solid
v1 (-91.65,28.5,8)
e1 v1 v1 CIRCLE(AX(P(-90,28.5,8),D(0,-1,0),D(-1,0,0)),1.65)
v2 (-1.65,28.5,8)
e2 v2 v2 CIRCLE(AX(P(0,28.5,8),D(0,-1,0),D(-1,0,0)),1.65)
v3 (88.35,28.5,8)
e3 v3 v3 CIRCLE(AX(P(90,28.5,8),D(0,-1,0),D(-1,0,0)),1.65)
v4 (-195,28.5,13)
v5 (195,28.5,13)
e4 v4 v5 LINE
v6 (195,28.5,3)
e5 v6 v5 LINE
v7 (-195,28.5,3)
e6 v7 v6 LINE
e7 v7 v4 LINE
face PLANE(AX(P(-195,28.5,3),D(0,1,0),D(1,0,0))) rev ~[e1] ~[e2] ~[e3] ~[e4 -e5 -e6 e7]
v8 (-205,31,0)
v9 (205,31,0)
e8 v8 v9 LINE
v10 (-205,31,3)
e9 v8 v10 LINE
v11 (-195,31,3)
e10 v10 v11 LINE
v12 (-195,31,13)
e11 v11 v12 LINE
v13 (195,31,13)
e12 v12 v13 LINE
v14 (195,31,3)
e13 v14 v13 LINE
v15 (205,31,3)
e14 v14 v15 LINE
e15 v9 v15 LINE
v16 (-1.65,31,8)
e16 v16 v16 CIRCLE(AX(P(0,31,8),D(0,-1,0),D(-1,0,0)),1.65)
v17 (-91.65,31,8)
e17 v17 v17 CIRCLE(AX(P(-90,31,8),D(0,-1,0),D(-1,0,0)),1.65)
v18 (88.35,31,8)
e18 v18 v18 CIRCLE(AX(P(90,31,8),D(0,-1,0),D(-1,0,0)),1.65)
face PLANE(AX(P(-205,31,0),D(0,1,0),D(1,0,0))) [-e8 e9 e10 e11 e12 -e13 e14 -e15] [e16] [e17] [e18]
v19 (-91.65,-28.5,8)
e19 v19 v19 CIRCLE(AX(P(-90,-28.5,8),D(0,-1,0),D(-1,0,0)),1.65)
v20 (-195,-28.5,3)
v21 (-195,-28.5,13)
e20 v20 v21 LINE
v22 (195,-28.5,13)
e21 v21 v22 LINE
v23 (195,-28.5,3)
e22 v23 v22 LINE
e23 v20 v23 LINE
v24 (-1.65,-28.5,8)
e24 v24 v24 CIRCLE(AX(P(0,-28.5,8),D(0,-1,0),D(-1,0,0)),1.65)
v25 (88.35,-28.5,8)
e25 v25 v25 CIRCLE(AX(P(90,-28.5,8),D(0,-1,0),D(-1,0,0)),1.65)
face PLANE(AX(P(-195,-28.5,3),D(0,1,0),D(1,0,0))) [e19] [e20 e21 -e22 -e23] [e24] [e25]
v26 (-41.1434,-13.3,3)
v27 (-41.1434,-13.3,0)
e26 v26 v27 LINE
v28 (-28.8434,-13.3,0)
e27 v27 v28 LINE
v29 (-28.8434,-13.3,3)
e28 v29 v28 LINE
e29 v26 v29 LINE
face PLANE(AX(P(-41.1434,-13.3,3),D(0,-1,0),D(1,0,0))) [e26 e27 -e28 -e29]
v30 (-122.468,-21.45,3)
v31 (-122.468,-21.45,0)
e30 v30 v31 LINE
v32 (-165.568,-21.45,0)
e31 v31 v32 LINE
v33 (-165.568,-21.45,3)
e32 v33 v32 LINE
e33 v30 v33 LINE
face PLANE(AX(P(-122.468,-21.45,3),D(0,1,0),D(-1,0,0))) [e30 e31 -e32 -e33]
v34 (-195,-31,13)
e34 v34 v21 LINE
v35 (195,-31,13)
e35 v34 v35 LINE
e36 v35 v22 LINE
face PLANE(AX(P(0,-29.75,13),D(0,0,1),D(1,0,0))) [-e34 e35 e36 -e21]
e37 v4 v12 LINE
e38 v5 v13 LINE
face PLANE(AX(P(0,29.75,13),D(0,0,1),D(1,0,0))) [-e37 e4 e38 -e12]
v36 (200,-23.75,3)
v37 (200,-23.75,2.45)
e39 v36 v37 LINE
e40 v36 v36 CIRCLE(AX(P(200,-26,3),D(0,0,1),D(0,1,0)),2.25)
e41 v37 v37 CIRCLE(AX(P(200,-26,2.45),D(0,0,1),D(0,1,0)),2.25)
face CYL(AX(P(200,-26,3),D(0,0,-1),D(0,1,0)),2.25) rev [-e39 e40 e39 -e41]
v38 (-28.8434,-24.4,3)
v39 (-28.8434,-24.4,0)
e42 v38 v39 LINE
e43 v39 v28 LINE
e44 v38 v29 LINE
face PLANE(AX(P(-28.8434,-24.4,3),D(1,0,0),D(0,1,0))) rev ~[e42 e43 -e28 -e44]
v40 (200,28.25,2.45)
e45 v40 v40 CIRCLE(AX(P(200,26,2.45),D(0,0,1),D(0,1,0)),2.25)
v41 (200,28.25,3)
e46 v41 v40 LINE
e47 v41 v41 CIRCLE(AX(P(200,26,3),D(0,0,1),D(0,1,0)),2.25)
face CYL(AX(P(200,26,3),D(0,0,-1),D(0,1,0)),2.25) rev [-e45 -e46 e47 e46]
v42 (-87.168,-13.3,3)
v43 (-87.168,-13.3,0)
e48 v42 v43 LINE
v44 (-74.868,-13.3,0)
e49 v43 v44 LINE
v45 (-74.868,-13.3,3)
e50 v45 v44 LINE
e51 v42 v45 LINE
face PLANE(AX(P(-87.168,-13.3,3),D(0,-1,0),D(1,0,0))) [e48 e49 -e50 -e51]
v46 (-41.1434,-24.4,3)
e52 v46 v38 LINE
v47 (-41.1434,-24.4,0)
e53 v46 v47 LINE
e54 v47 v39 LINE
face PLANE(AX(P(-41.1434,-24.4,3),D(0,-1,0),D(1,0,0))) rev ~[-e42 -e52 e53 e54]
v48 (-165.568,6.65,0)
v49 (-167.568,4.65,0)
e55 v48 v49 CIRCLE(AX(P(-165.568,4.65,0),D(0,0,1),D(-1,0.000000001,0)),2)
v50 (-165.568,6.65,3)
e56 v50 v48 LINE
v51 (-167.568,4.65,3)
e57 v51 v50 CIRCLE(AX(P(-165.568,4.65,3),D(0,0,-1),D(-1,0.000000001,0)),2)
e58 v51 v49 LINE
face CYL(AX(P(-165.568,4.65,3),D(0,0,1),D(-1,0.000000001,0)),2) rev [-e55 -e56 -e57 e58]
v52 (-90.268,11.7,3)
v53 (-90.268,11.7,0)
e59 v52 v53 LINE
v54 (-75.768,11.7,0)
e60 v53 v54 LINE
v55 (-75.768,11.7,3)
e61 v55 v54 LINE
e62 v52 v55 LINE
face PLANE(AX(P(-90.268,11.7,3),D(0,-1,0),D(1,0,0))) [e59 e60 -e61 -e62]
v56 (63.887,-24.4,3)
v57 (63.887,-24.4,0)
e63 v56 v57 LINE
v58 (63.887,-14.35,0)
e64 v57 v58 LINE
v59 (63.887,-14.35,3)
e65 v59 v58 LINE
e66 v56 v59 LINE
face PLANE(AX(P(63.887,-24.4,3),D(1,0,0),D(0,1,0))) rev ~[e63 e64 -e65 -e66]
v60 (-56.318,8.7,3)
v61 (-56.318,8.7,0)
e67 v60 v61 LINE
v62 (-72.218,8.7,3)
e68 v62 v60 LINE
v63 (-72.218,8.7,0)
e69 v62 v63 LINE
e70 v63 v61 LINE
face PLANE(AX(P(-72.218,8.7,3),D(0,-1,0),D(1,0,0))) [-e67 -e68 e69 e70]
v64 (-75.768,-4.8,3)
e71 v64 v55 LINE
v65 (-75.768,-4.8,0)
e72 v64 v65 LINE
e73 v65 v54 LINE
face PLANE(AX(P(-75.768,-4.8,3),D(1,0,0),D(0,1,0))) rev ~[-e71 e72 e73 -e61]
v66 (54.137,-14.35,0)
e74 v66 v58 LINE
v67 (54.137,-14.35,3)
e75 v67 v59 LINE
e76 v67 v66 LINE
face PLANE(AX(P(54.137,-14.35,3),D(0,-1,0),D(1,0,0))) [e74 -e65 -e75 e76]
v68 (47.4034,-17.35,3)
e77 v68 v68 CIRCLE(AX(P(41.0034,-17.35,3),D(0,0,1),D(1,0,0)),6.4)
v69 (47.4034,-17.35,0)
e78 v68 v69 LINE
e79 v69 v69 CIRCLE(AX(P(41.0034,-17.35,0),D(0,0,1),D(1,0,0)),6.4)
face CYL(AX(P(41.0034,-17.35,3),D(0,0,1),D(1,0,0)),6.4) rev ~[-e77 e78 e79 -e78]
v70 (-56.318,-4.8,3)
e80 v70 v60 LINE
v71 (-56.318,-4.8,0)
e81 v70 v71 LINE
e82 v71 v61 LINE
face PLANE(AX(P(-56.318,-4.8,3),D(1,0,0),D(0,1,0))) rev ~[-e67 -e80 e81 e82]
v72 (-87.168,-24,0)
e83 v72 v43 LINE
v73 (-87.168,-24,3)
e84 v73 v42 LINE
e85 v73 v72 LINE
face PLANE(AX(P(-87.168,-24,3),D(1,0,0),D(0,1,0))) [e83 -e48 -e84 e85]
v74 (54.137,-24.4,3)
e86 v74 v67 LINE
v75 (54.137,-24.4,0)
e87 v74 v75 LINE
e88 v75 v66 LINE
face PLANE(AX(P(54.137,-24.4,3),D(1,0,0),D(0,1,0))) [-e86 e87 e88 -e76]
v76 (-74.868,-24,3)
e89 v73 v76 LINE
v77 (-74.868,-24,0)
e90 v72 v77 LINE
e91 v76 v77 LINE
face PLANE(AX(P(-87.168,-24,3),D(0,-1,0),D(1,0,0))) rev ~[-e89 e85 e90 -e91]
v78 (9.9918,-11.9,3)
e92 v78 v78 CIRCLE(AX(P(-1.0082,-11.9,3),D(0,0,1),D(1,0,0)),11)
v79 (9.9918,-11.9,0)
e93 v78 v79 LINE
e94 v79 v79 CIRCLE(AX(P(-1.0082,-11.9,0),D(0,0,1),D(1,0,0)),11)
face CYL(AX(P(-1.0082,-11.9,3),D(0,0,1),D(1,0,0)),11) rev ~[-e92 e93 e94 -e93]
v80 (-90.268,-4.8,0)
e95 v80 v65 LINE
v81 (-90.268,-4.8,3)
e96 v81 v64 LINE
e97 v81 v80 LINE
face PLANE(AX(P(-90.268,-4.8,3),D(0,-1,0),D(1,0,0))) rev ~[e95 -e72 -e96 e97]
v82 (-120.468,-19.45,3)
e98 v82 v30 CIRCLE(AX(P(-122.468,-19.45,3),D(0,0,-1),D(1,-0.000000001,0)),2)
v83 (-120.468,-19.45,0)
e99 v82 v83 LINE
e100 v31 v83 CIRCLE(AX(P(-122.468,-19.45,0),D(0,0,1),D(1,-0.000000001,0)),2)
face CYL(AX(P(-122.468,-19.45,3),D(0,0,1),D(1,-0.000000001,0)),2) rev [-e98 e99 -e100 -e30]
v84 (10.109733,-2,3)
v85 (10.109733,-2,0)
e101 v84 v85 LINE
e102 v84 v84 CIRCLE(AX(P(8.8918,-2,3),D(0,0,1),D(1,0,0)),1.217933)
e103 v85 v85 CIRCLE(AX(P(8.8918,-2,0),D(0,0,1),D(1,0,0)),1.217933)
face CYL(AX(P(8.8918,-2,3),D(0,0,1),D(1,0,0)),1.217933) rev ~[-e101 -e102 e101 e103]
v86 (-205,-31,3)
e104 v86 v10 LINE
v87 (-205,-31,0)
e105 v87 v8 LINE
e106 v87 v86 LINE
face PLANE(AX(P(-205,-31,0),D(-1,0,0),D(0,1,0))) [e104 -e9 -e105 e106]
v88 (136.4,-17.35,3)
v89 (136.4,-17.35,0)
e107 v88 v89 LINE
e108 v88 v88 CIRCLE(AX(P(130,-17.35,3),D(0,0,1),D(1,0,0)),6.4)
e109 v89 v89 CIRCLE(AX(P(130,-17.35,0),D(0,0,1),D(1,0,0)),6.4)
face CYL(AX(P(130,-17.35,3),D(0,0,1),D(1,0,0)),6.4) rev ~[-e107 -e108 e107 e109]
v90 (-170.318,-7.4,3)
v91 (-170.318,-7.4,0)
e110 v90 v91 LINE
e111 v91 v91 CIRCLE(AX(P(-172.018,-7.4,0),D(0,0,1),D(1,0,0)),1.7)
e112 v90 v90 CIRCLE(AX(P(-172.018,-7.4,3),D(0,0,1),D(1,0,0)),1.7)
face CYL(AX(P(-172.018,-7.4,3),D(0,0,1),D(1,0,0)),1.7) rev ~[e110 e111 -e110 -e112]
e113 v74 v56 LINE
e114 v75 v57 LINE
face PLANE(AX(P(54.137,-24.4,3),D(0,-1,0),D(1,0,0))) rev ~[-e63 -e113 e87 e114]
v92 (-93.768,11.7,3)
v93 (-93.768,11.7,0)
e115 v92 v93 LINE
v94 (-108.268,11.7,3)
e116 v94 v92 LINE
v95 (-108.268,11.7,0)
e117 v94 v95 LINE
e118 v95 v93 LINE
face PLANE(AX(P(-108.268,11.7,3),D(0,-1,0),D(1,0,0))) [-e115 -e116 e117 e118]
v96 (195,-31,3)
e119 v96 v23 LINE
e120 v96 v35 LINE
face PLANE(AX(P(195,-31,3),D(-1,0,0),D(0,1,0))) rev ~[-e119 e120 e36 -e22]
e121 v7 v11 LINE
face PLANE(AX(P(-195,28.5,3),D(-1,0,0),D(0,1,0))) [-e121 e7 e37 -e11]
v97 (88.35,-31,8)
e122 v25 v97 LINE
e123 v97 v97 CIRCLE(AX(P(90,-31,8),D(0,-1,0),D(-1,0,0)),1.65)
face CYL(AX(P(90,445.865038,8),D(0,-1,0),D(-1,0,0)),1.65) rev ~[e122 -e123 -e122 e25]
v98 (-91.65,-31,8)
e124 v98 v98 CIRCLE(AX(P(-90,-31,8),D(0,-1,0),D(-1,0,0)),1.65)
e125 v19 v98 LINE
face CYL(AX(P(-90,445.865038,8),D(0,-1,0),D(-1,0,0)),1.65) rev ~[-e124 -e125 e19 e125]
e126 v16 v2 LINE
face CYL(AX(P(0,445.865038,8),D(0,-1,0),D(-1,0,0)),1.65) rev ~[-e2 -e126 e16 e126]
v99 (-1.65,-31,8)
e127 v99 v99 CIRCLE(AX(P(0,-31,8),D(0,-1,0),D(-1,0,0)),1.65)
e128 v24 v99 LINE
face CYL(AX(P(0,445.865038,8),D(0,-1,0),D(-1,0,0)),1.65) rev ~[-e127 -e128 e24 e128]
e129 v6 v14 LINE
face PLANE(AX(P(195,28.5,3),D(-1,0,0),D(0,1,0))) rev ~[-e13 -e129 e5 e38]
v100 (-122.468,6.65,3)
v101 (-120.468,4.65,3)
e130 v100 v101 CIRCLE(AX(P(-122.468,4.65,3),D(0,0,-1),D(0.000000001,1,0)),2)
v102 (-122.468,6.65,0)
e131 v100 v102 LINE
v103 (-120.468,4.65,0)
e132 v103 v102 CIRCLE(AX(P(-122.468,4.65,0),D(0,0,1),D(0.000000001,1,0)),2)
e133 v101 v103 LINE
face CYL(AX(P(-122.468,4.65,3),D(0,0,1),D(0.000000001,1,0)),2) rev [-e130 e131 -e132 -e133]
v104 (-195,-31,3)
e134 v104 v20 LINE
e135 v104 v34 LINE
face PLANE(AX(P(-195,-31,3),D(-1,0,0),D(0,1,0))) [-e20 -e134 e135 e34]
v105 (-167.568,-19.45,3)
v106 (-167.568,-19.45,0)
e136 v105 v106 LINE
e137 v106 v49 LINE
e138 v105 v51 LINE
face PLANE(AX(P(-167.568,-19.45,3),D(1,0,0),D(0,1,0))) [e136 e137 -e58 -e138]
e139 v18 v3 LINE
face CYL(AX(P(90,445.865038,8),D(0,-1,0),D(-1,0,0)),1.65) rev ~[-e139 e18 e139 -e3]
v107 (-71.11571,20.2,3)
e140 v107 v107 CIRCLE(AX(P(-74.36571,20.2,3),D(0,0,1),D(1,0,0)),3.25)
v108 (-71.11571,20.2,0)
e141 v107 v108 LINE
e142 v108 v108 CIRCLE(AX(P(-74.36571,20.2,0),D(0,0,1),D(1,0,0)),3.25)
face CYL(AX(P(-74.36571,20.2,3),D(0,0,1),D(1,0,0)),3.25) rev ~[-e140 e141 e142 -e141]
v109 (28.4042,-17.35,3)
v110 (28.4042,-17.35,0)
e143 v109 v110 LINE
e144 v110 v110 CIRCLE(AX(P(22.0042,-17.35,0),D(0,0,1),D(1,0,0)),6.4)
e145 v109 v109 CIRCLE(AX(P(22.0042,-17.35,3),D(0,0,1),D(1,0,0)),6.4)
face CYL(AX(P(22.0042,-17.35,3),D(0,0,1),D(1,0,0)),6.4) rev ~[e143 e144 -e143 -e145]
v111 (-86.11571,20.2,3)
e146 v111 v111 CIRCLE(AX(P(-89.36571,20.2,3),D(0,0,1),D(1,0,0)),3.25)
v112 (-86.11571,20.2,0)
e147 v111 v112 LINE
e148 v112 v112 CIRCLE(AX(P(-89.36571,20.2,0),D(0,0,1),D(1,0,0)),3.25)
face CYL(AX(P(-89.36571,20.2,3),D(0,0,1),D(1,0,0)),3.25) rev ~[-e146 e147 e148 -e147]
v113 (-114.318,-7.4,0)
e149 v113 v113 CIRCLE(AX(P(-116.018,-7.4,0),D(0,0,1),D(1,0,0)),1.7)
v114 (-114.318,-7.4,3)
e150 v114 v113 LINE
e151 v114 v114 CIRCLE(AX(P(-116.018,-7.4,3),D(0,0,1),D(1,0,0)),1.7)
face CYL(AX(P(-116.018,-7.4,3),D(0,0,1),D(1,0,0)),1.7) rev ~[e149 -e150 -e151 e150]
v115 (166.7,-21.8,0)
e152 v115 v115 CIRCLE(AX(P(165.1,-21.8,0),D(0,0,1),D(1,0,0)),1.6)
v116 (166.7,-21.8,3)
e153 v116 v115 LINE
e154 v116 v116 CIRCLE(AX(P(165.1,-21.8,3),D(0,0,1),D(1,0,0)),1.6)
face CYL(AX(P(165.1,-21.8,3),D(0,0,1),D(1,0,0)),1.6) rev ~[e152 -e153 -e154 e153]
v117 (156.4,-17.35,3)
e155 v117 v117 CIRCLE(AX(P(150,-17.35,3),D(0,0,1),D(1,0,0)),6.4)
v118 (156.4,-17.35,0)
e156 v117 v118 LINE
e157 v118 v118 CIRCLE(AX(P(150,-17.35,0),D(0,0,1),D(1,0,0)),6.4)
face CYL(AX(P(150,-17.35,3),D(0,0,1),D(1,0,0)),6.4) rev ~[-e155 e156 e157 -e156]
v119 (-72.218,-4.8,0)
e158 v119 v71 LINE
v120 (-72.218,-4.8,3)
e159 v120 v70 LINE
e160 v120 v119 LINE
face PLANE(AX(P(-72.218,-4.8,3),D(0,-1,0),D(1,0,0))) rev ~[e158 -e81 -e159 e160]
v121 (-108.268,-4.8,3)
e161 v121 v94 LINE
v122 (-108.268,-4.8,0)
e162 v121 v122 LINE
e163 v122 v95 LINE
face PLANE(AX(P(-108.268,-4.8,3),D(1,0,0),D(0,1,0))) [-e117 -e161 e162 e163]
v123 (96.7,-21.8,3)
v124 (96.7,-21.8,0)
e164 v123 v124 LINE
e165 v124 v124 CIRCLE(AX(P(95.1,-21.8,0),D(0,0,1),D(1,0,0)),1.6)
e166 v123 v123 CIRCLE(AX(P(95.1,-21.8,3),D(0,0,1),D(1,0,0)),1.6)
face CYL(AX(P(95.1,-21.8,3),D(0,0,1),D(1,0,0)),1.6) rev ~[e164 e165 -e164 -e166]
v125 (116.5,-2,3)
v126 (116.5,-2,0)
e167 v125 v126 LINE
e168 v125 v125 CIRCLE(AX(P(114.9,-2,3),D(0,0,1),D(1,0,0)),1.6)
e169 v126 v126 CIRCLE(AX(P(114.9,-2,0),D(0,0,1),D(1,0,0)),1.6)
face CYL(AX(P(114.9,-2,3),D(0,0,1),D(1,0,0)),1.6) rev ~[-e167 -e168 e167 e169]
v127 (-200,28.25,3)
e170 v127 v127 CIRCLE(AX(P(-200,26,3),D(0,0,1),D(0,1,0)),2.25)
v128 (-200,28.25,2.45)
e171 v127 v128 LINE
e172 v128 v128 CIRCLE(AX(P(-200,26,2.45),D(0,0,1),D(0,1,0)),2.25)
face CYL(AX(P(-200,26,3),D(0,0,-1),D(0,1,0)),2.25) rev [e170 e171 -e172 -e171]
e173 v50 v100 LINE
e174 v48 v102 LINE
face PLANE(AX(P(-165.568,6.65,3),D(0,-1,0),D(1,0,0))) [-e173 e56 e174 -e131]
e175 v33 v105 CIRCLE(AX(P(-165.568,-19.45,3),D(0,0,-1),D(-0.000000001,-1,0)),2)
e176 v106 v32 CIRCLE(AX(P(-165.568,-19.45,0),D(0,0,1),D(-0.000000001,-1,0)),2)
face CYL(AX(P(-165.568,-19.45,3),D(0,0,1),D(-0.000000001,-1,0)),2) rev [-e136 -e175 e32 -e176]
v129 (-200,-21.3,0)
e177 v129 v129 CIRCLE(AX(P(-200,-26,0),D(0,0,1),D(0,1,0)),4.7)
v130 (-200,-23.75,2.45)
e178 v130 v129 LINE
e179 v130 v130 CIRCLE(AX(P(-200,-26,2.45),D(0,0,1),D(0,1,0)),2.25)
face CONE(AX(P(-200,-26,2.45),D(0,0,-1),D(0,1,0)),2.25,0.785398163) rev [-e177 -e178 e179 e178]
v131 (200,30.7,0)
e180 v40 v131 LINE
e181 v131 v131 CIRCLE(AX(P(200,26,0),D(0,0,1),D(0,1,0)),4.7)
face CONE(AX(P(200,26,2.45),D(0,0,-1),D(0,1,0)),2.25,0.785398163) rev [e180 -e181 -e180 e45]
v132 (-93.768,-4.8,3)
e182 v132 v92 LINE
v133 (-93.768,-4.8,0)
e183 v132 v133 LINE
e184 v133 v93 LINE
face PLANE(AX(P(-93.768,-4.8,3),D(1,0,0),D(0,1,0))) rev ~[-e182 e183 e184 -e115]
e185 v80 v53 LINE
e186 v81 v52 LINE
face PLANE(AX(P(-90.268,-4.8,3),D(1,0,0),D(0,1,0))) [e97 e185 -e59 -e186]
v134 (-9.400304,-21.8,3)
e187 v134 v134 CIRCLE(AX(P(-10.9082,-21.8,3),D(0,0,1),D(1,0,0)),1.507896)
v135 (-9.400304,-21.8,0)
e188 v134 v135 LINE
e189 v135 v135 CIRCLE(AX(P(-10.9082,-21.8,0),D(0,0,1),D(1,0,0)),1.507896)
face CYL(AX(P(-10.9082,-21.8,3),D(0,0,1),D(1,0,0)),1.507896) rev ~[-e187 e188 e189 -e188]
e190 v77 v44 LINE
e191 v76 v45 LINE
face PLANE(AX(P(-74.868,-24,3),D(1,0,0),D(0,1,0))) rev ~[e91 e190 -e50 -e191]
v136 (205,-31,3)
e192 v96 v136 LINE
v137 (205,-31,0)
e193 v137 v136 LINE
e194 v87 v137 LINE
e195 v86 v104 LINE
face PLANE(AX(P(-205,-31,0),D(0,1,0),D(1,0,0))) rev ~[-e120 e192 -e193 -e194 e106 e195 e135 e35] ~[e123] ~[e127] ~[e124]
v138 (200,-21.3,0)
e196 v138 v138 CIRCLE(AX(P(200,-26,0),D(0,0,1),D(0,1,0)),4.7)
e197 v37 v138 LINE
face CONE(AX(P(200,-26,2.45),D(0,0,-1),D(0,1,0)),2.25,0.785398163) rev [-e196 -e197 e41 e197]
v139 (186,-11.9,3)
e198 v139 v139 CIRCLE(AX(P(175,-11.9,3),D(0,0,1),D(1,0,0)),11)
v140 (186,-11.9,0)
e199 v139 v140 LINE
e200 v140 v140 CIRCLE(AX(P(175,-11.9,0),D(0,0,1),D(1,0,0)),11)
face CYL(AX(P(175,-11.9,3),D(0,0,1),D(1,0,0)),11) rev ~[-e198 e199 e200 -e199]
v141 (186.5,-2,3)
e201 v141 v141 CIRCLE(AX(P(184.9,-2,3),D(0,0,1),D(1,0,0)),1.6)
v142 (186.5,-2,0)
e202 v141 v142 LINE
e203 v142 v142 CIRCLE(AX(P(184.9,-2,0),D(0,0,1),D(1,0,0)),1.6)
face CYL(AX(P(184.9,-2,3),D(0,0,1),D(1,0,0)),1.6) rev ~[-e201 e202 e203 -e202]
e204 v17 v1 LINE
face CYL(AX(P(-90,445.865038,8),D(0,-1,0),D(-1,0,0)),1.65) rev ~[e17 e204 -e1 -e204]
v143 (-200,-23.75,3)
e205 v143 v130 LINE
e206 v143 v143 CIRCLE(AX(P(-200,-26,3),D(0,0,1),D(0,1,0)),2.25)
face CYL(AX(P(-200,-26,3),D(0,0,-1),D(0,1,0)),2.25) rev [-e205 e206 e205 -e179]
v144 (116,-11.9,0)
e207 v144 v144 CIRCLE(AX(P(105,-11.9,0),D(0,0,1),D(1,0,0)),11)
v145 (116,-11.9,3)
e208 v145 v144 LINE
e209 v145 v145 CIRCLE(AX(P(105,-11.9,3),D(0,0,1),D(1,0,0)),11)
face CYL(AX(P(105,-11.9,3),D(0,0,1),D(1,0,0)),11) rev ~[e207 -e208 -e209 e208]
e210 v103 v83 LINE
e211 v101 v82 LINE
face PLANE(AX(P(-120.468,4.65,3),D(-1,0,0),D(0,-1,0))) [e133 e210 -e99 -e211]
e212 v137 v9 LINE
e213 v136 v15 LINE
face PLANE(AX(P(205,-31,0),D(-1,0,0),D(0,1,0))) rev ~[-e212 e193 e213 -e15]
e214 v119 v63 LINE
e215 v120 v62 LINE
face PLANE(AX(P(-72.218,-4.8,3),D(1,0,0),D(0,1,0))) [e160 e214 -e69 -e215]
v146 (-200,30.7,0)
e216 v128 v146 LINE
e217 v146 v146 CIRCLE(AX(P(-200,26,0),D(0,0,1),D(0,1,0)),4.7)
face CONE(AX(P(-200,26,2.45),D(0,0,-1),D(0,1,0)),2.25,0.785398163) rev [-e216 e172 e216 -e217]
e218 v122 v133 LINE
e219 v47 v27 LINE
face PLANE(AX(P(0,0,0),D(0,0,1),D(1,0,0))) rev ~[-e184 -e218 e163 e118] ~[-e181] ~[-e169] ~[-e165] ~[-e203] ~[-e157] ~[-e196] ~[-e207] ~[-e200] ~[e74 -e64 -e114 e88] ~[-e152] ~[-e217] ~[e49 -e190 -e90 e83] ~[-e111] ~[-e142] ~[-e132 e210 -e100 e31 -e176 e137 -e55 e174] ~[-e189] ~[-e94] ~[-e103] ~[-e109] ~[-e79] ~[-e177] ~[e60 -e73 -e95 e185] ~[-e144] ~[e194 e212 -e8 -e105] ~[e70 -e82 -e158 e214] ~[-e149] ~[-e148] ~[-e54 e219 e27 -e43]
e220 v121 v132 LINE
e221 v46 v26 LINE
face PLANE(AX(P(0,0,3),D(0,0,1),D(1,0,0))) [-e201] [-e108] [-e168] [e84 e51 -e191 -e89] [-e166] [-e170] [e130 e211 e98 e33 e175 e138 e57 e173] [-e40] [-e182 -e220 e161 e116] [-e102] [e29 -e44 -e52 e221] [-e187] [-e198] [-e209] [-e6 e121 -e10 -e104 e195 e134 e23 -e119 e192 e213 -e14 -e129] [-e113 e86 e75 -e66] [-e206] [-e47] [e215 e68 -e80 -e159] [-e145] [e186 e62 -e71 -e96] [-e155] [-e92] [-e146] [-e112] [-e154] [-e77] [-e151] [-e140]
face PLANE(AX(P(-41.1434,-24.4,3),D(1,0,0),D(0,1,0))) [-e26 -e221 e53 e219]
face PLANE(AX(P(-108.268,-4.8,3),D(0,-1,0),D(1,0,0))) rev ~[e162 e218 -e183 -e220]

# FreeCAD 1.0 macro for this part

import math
import FreeCAD as App
import Part
import Sketcher
from FreeCAD import Vector
Q = App.Units.Quantity

doc = App.newDocument("Part")
body = doc.addObject("PartDesign::Body", "Body")

# Sketch on XY plane
sketch1 = doc.addObject("Sketcher::SketchObject", "Sketch")
body.addObject(sketch1)
sketch1.AttachmentSupport = (doc.XY_Plane, [""])
sketch1.MapMode = "FlatFace"
sketch1.addGeometry(Part.LineSegment(Vector(-205, 31, 0), Vector(-205, -31, 0)), False)
sketch1.addGeometry(Part.LineSegment(Vector(-205, -31, 0), Vector(205, -31, 0)), False)
sketch1.addGeometry(Part.LineSegment(Vector(205, -31, 0), Vector(205, 31, 0)), False)
sketch1.addGeometry(Part.LineSegment(Vector(205, 31, 0), Vector(-205, 31, 0)), False)
sketch1.addConstraint(Sketcher.Constraint("Coincident", 0, 2, 1, 1))
sketch1.addConstraint(Sketcher.Constraint("Coincident", 1, 2, 2, 1))
sketch1.addConstraint(Sketcher.Constraint("Coincident", 2, 2, 3, 1))
sketch1.addConstraint(Sketcher.Constraint("Coincident", 3, 2, 0, 1))
sketch1.addConstraint(Sketcher.Constraint("Vertical", 0))
sketch1.addConstraint(Sketcher.Constraint("Horizontal", 1))
sketch1.addConstraint(Sketcher.Constraint("Vertical", 2))
sketch1.addConstraint(Sketcher.Constraint("Horizontal", 3))
sketch1.addConstraint(Sketcher.Constraint("Symmetric", 0, 2, 2, 2, -1, 1))
sketch1.addConstraint(Sketcher.Constraint("DistanceX", 1, 1, 1, 2, Q("410 mm")))
sketch1.addConstraint(Sketcher.Constraint("DistanceY", 0, 2, 0, 1, Q("62 mm")))
pad1 = doc.addObject("PartDesign::Pad", "Pad")
body.addObject(pad1)
pad1.Profile = sketch1
pad1.Length = 3

# Sketch on YZ plane
sketch2 = doc.addObject("Sketcher::SketchObject", "Sketch001")
body.addObject(sketch2)
sketch2.AttachmentSupport = (doc.YZ_Plane, [""])
sketch2.MapMode = "FlatFace"
sketch2.AttachmentOffset = App.Placement(Vector(0, 0, -200), App.Rotation())
sketch2.addGeometry(Part.LineSegment(Vector(26, 3, 0), Vector(26, 0, 0)), False)
sketch2.addGeometry(Part.LineSegment(Vector(26, 0, 0), Vector(30.7, 0, 0)), False)
sketch2.addGeometry(Part.LineSegment(Vector(30.7, 0, 0), Vector(28.25, 2.45, 0)), False)
sketch2.addGeometry(Part.LineSegment(Vector(28.25, 2.45, 0), Vector(28.25, 3, 0)), False)
sketch2.addGeometry(Part.LineSegment(Vector(28.25, 3, 0), Vector(26, 3, 0)), False)
sketch2.addGeometry(Part.LineSegment(Vector(26, 0, 0), Vector(26, 3, 0)), True)  # axis
sketch2.addConstraint(Sketcher.Constraint("Coincident", 0, 2, 1, 1))
sketch2.addConstraint(Sketcher.Constraint("Coincident", 1, 2, 2, 1))
sketch2.addConstraint(Sketcher.Constraint("Coincident", 2, 2, 3, 1))
sketch2.addConstraint(Sketcher.Constraint("Coincident", 3, 2, 4, 1))
sketch2.addConstraint(Sketcher.Constraint("Coincident", 4, 2, 0, 1))
sketch2.addConstraint(Sketcher.Constraint("Vertical", 0))
sketch2.addConstraint(Sketcher.Constraint("Horizontal", 1))
sketch2.addConstraint(Sketcher.Constraint("Vertical", 3))
sketch2.addConstraint(Sketcher.Constraint("Horizontal", 4))
sketch2.addConstraint(Sketcher.Constraint("Vertical", 5))
sketch2.addConstraint(Sketcher.Constraint("Coincident", 5, 1, 0, 2))
sketch2.addConstraint(Sketcher.Constraint("PointOnObject", 0, 2, -1))
sketch2.addConstraint(Sketcher.Constraint("Horizontal", 3, 2, 5, 2))
sketch2.addConstraint(Sketcher.Constraint("DistanceY", 0, 2, 0, 1, Q("3 mm")))
sketch2.addConstraint(Sketcher.Constraint("Angle", 2, Q("135 deg")))
sketch2.addConstraint(Sketcher.Constraint("DistanceX", 1, 1, 1, 2, Q("4.7 mm")))
sketch2.addConstraint(Sketcher.Constraint("DistanceX", -1, 1, 0, 2, Q("26 mm")))
sketch2.addConstraint(Sketcher.Constraint("DistanceX", 4, 2, 4, 1, Q("2.25 mm")))
groove = doc.addObject("PartDesign::Groove", "Groove")
body.addObject(groove)
groove.Profile = sketch2
groove.ReferenceAxis = (sketch2, ["Axis0"])
groove.Angle = 360
doc.recompute()

linearpattern = doc.addObject("PartDesign::LinearPattern", "LinearPattern")
body.addObject(linearpattern)
linearpattern.Originals = [groove]
linearpattern.Direction = (doc.Y_Axis, [""])
linearpattern.Mode = "offset"
linearpattern.Offset = 52
linearpattern.Occurrences = 2
linearpattern.Reversed = True
body.Tip = linearpattern
doc.recompute()

datumline = doc.addObject("PartDesign::Line", "DatumLine")
body.addObject(datumline)
datumline.Placement = App.Placement(Vector(0, 0, 0), App.Rotation(Vector(0, 0, 1), Vector(0.991655617, -0.12891523, 0)))
linearpattern2 = doc.addObject("PartDesign::LinearPattern", "LinearPattern001")
body.addObject(linearpattern2)
linearpattern2.Originals = [groove]
linearpattern2.Direction = (datumline, [""])
linearpattern2.Mode = "offset"
linearpattern2.Offset = 403.365839
linearpattern2.Occurrences = 2
body.Tip = linearpattern2
doc.recompute()

linearpattern3 = doc.addObject("PartDesign::LinearPattern", "LinearPattern002")
body.addObject(linearpattern3)
linearpattern3.Originals = [groove]
linearpattern3.Direction = (doc.X_Axis, [""])
linearpattern3.Mode = "offset"
linearpattern3.Offset = 400
linearpattern3.Occurrences = 2
body.Tip = linearpattern3

# Sketch on XY plane
sketch3 = doc.addObject("Sketcher::SketchObject", "Sketch002")
body.addObject(sketch3)
sketch3.AttachmentSupport = (doc.XY_Plane, [""])
sketch3.MapMode = "FlatFace"
sketch3.AttachmentOffset = App.Placement(Vector(0, 0, 3), App.Rotation())
sketch3.addGeometry(Part.LineSegment(Vector(-195, 31, 0), Vector(-195, 28.5, 0)), False)
sketch3.addGeometry(Part.LineSegment(Vector(-195, 28.5, 0), Vector(195, 28.5, 0)), False)
sketch3.addGeometry(Part.LineSegment(Vector(195, 28.5, 0), Vector(195, 31, 0)), False)
sketch3.addGeometry(Part.LineSegment(Vector(195, 31, 0), Vector(-195, 31, 0)), False)
sketch3.addGeometry(Part.LineSegment(Vector(-195, -28.5, 0), Vector(-195, -31, 0)), False)
sketch3.addGeometry(Part.LineSegment(Vector(-195, -31, 0), Vector(195, -31, 0)), False)
sketch3.addGeometry(Part.LineSegment(Vector(195, -31, 0), Vector(195, -28.5, 0)), False)
sketch3.addGeometry(Part.LineSegment(Vector(195, -28.5, 0), Vector(-195, -28.5, 0)), False)
sketch3.addConstraint(Sketcher.Constraint("Coincident", 0, 2, 1, 1))
sketch3.addConstraint(Sketcher.Constraint("Coincident", 1, 2, 2, 1))
sketch3.addConstraint(Sketcher.Constraint("Coincident", 2, 2, 3, 1))
sketch3.addConstraint(Sketcher.Constraint("Coincident", 3, 2, 0, 1))
sketch3.addConstraint(Sketcher.Constraint("Coincident", 4, 2, 5, 1))
sketch3.addConstraint(Sketcher.Constraint("Coincident", 5, 2, 6, 1))
sketch3.addConstraint(Sketcher.Constraint("Coincident", 6, 2, 7, 1))
sketch3.addConstraint(Sketcher.Constraint("Coincident", 7, 2, 4, 1))
sketch3.addConstraint(Sketcher.Constraint("Vertical", 0))
sketch3.addConstraint(Sketcher.Constraint("Horizontal", 1))
sketch3.addConstraint(Sketcher.Constraint("Vertical", 2))
sketch3.addConstraint(Sketcher.Constraint("Horizontal", 3))
sketch3.addConstraint(Sketcher.Constraint("Vertical", 4))
sketch3.addConstraint(Sketcher.Constraint("Horizontal", 5))
sketch3.addConstraint(Sketcher.Constraint("Vertical", 6))
sketch3.addConstraint(Sketcher.Constraint("Horizontal", 7))
sketch3.addConstraint(Sketcher.Constraint("Symmetric", 2, 2, 4, 2, -1, 1))
sketch3.addConstraint(Sketcher.Constraint("Symmetric", 0, 2, 6, 2, -1, 1))
sketch3.addConstraint(Sketcher.Constraint("Vertical", 3, 2, 4, 2))
sketch3.addConstraint(Sketcher.Constraint("DistanceX", 1, 1, 1, 2, Q("390 mm")))
sketch3.addConstraint(Sketcher.Constraint("DistanceY", 0, 2, 0, 1, Q("2.5 mm")))
sketch3.addConstraint(Sketcher.Constraint("DistanceY", -1, 1, 2, 2, Q("31 mm")))
pad2 = doc.addObject("PartDesign::Pad", "Pad001")
body.addObject(pad2)
pad2.Profile = sketch3
pad2.Length = 10

# Sketch on XY plane
sketch4 = doc.addObject("Sketcher::SketchObject", "Sketch003")
body.addObject(sketch4)
sketch4.AttachmentSupport = (doc.XY_Plane, [""])
sketch4.MapMode = "FlatFace"
sketch4.AttachmentOffset = App.Placement(Vector(0, 0, 3), App.Rotation())
sketch4.addGeometry(Part.ArcOfCircle(Part.Circle(Vector(-165.568, 4.65, 0), Vector(0, 0, 1), 2), math.radians(90), math.radians(180)), False)
sketch4.addGeometry(Part.LineSegment(Vector(-167.568, 4.65, 0), Vector(-167.568, -19.45, 0)), False)
sketch4.addGeometry(Part.ArcOfCircle(Part.Circle(Vector(-165.568, -19.45, 0), Vector(0, 0, 1), 2), math.radians(-180), math.radians(-90)), False)
sketch4.addGeometry(Part.LineSegment(Vector(-165.568, -21.45, 0), Vector(-122.468, -21.45, 0)), False)
sketch4.addGeometry(Part.ArcOfCircle(Part.Circle(Vector(-122.468, -19.45, 0), Vector(0, 0, 1), 2), math.radians(-90), math.radians(0)), False)
sketch4.addGeometry(Part.LineSegment(Vector(-120.468, -19.45, 0), Vector(-120.468, 4.65, 0)), False)
sketch4.addGeometry(Part.ArcOfCircle(Part.Circle(Vector(-122.468, 4.65, 0), Vector(0, 0, 1), 2), math.radians(0), math.radians(90)), False)
sketch4.addGeometry(Part.LineSegment(Vector(-122.468, 6.65, 0), Vector(-165.568, 6.65, 0)), False)
sketch4.addGeometry(Part.Circle(Vector(-172.018, -7.4, 0), Vector(0, 0, 1), 1.7), False)
sketch4.addGeometry(Part.Circle(Vector(-116.018, -7.4, 0), Vector(0, 0, 1), 1.7), False)
sketch4.addGeometry(Part.LineSegment(Vector(-72.218, 8.7, 0), Vector(-72.218, -4.8, 0)), False)
sketch4.addGeometry(Part.LineSegment(Vector(-72.218, -4.8, 0), Vector(-56.318, -4.8, 0)), False)
sketch4.addGeometry(Part.LineSegment(Vector(-56.318, -4.8, 0), Vector(-56.318, 8.7, 0)), False)
sketch4.addGeometry(Part.LineSegment(Vector(-56.318, 8.7, 0), Vector(-72.218, 8.7, 0)), False)
sketch4.addGeometry(Part.LineSegment(Vector(-90.268, 11.7, 0), Vector(-90.268, -4.8, 0)), False)
sketch4.addGeometry(Part.LineSegment(Vector(-90.268, -4.8, 0), Vector(-75.768, -4.8, 0)), False)
sketch4.addGeometry(Part.LineSegment(Vector(-75.768, -4.8, 0), Vector(-75.768, 11.7, 0)), False)
sketch4.addGeometry(Part.LineSegment(Vector(-75.768, 11.7, 0), Vector(-90.268, 11.7, 0)), False)
sketch4.addGeometry(Part.LineSegment(Vector(-108.268, 11.7, 0), Vector(-108.268, -4.8, 0)), False)
sketch4.addGeometry(Part.LineSegment(Vector(-108.268, -4.8, 0), Vector(-93.768, -4.8, 0)), False)
sketch4.addGeometry(Part.LineSegment(Vector(-93.768, -4.8, 0), Vector(-93.768, 11.7, 0)), False)
sketch4.addGeometry(Part.LineSegment(Vector(-93.768, 11.7, 0), Vector(-108.268, 11.7, 0)), False)
sketch4.addGeometry(Part.LineSegment(Vector(-87.168, -13.3, 0), Vector(-87.168, -24, 0)), False)
sketch4.addGeometry(Part.LineSegment(Vector(-87.168, -24, 0), Vector(-74.868, -24, 0)), False)
sketch4.addGeometry(Part.LineSegment(Vector(-74.868, -24, 0), Vector(-74.868, -13.3, 0)), False)
sketch4.addGeometry(Part.LineSegment(Vector(-74.868, -13.3, 0), Vector(-87.168, -13.3, 0)), False)
sketch4.addGeometry(Part.LineSegment(Vector(-41.1434, -13.3, 0), Vector(-41.1434, -24.4, 0)), False)
sketch4.addGeometry(Part.LineSegment(Vector(-41.1434, -24.4, 0), Vector(-28.8434, -24.4, 0)), False)
sketch4.addGeometry(Part.LineSegment(Vector(-28.8434, -24.4, 0), Vector(-28.8434, -13.3, 0)), False)
sketch4.addGeometry(Part.LineSegment(Vector(-28.8434, -13.3, 0), Vector(-41.1434, -13.3, 0)), False)
sketch4.addGeometry(Part.Circle(Vector(-1.0082, -11.9, 0), Vector(0, 0, 1), 11), False)
sketch4.addGeometry(Part.Circle(Vector(8.8918, -2, 0), Vector(0, 0, 1), 1.217933), False)
sketch4.addGeometry(Part.Circle(Vector(22.0042, -17.35, 0), Vector(0, 0, 1), 6.4), False)
sketch4.addGeometry(Part.Circle(Vector(-10.9082, -21.8, 0), Vector(0, 0, 1), 1.507896), False)
sketch4.addGeometry(Part.LineSegment(Vector(54.137, -14.35, 0), Vector(54.137, -24.4, 0)), False)
sketch4.addGeometry(Part.LineSegment(Vector(54.137, -24.4, 0), Vector(63.887, -24.4, 0)), False)
sketch4.addGeometry(Part.LineSegment(Vector(63.887, -24.4, 0), Vector(63.887, -14.35, 0)), False)
sketch4.addGeometry(Part.LineSegment(Vector(63.887, -14.35, 0), Vector(54.137, -14.35, 0)), False)
sketch4.addGeometry(Part.Circle(Vector(41.0034, -17.35, 0), Vector(0, 0, 1), 6.4), False)
sketch4.addGeometry(Part.Circle(Vector(105, -11.9, 0), Vector(0, 0, 1), 11), False)
sketch4.addGeometry(Part.Circle(Vector(130, -17.35, 0), Vector(0, 0, 1), 6.4), False)
sketch4.addGeometry(Part.Circle(Vector(150, -17.35, 0), Vector(0, 0, 1), 6.4), False)
sketch4.addGeometry(Part.Circle(Vector(175, -11.9, 0), Vector(0, 0, 1), 11), False)
sketch4.addGeometry(Part.Circle(Vector(184.9, -2, 0), Vector(0, 0, 1), 1.6), False)
sketch4.addGeometry(Part.Circle(Vector(165.1, -21.8, 0), Vector(0, 0, 1), 1.6), False)
sketch4.addGeometry(Part.Circle(Vector(114.9, -2, 0), Vector(0, 0, 1), 1.6), False)
sketch4.addGeometry(Part.Circle(Vector(95.1, -21.8, 0), Vector(0, 0, 1), 1.6), False)
sketch4.addGeometry(Part.Circle(Vector(-74.36571, 20.2, 0), Vector(0, 0, 1), 3.25), False)
sketch4.addGeometry(Part.Circle(Vector(-89.36571, 20.2, 0), Vector(0, 0, 1), 3.25), False)
sketch4.addConstraint(Sketcher.Constraint("Tangent", 0, 2, 1, 1))
sketch4.addConstraint(Sketcher.Constraint("Tangent", 1, 2, 2, 1))
sketch4.addConstraint(Sketcher.Constraint("Tangent", 2, 2, 3, 1))
sketch4.addConstraint(Sketcher.Constraint("Tangent", 3, 2, 4, 1))
sketch4.addConstraint(Sketcher.Constraint("Tangent", 4, 2, 5, 1))
sketch4.addConstraint(Sketcher.Constraint("Tangent", 5, 2, 6, 1))
sketch4.addConstraint(Sketcher.Constraint("Tangent", 6, 2, 7, 1))
sketch4.addConstraint(Sketcher.Constraint("Tangent", 7, 2, 0, 1))
sketch4.addConstraint(Sketcher.Constraint("Coincident", 10, 2, 11, 1))
sketch4.addConstraint(Sketcher.Constraint("Coincident", 11, 2, 12, 1))
sketch4.addConstraint(Sketcher.Constraint("Coincident", 12, 2, 13, 1))
sketch4.addConstraint(Sketcher.Constraint("Coincident", 13, 2, 10, 1))
sketch4.addConstraint(Sketcher.Constraint("Coincident", 14, 2, 15, 1))
sketch4.addConstraint(Sketcher.Constraint("Coincident", 15, 2, 16, 1))
sketch4.addConstraint(Sketcher.Constraint("Coincident", 16, 2, 17, 1))
sketch4.addConstraint(Sketcher.Constraint("Coincident", 17, 2, 14, 1))
sketch4.addConstraint(Sketcher.Constraint("Coincident", 18, 2, 19, 1))
sketch4.addConstraint(Sketcher.Constraint("Coincident", 19, 2, 20, 1))
sketch4.addConstraint(Sketcher.Constraint("Coincident", 20, 2, 21, 1))
sketch4.addConstraint(Sketcher.Constraint("Coincident", 21, 2, 18, 1))
sketch4.addConstraint(Sketcher.Constraint("Coincident", 22, 2, 23, 1))
sketch4.addConstraint(Sketcher.Constraint("Coincident", 23, 2, 24, 1))
sketch4.addConstraint(Sketcher.Constraint("Coincident", 24, 2, 25, 1))
sketch4.addConstraint(Sketcher.Constraint("Coincident", 25, 2, 22, 1))
sketch4.addConstraint(Sketcher.Constraint("Coincident", 26, 2, 27, 1))
sketch4.addConstraint(Sketcher.Constraint("Coincident", 27, 2, 28, 1))
sketch4.addConstraint(Sketcher.Constraint("Coincident", 28, 2, 29, 1))
sketch4.addConstraint(Sketcher.Constraint("Coincident", 29, 2, 26, 1))
sketch4.addConstraint(Sketcher.Constraint("Coincident", 34, 2, 35, 1))
sketch4.addConstraint(Sketcher.Constraint("Coincident", 35, 2, 36, 1))
sketch4.addConstraint(Sketcher.Constraint("Coincident", 36, 2, 37, 1))
sketch4.addConstraint(Sketcher.Constraint("Coincident", 37, 2, 34, 1))
sketch4.addConstraint(Sketcher.Constraint("Vertical", 1))
sketch4.addConstraint(Sketcher.Constraint("Horizontal", 3))
sketch4.addConstraint(Sketcher.Constraint("Vertical", 5))
sketch4.addConstraint(Sketcher.Constraint("Horizontal", 7))
sketch4.addConstraint(Sketcher.Constraint("Vertical", 10))
sketch4.addConstraint(Sketcher.Constraint("Horizontal", 11))
sketch4.addConstraint(Sketcher.Constraint("Vertical", 12))
sketch4.addConstraint(Sketcher.Constraint("Horizontal", 13))
sketch4.addConstraint(Sketcher.Constraint("Vertical", 14))
sketch4.addConstraint(Sketcher.Constraint("Horizontal", 15))
sketch4.addConstraint(Sketcher.Constraint("Vertical", 16))
sketch4.addConstraint(Sketcher.Constraint("Horizontal", 17))
sketch4.addConstraint(Sketcher.Constraint("Vertical", 18))
sketch4.addConstraint(Sketcher.Constraint("Horizontal", 19))
sketch4.addConstraint(Sketcher.Constraint("Vertical", 20))
sketch4.addConstraint(Sketcher.Constraint("Horizontal", 21))
sketch4.addConstraint(Sketcher.Constraint("Vertical", 22))
sketch4.addConstraint(Sketcher.Constraint("Horizontal", 23))
sketch4.addConstraint(Sketcher.Constraint("Vertical", 24))
sketch4.addConstraint(Sketcher.Constraint("Horizontal", 25))
sketch4.addConstraint(Sketcher.Constraint("Vertical", 26))
sketch4.addConstraint(Sketcher.Constraint("Horizontal", 27))
sketch4.addConstraint(Sketcher.Constraint("Vertical", 28))
sketch4.addConstraint(Sketcher.Constraint("Horizontal", 29))
sketch4.addConstraint(Sketcher.Constraint("Vertical", 34))
sketch4.addConstraint(Sketcher.Constraint("Horizontal", 35))
sketch4.addConstraint(Sketcher.Constraint("Vertical", 36))
sketch4.addConstraint(Sketcher.Constraint("Horizontal", 37))
sketch4.addConstraint(Sketcher.Constraint("Equal", 0, 2))
sketch4.addConstraint(Sketcher.Constraint("Equal", 2, 4))
sketch4.addConstraint(Sketcher.Constraint("Equal", 4, 6))
sketch4.addConstraint(Sketcher.Constraint("Equal", 8, 9))
sketch4.addConstraint(Sketcher.Constraint("Equal", 32, 38))
sketch4.addConstraint(Sketcher.Constraint("Equal", 30, 39))
sketch4.addConstraint(Sketcher.Constraint("Equal", 38, 40))
sketch4.addConstraint(Sketcher.Constraint("Equal", 40, 41))
sketch4.addConstraint(Sketcher.Constraint("Equal", 39, 42))
sketch4.addConstraint(Sketcher.Constraint("Equal", 43, 44))
sketch4.addConstraint(Sketcher.Constraint("Equal", 44, 45))
sketch4.addConstraint(Sketcher.Constraint("Equal", 45, 46))
sketch4.addConstraint(Sketcher.Constraint("Equal", 47, 48))
sketch4.addConstraint(Sketcher.Constraint("Horizontal", 8, 3, 9, 3))
sketch4.addConstraint(Sketcher.Constraint("Horizontal", 32, 3, 38, 3))
sketch4.addConstraint(Sketcher.Constraint("Horizontal", 30, 3, 39, 3))
sketch4.addConstraint(Sketcher.Constraint("Horizontal", 38, 3, 40, 3))
sketch4.addConstraint(Sketcher.Constraint("Horizontal", 40, 3, 41, 3))
sketch4.addConstraint(Sketcher.Constraint("Horizontal", 39, 3, 42, 3))
sketch4.addConstraint(Sketcher.Constraint("Horizontal", 31, 3, 43, 3))
sketch4.addConstraint(Sketcher.Constraint("Horizontal", 33, 3, 44, 3))
sketch4.addConstraint(Sketcher.Constraint("Horizontal", 43, 3, 45, 3))
sketch4.addConstraint(Sketcher.Constraint("Horizontal", 44, 3, 46, 3))
sketch4.addConstraint(Sketcher.Constraint("Horizontal", 47, 3, 48, 3))
sketch4.addConstraint(Sketcher.Constraint("Horizontal", 11, 2, 14, 2))
sketch4.addConstraint(Sketcher.Constraint("Horizontal", 15, 2, 18, 2))
sketch4.addConstraint(Sketcher.Constraint("Horizontal", 17, 2, 20, 2))
sketch4.addConstraint(Sketcher.Constraint("Horizontal", 25, 2, 28, 2))
sketch4.addConstraint(Sketcher.Constraint("Horizontal", 27, 2, 34, 2))
sketch4.addConstraint(Sketcher.Constraint("Equal", 17, 19))
sketch4.addConstraint(Sketcher.Constraint("Equal", 25, 27))
sketch4.addConstraint(Sketcher.Constraint("Diameter", 30, Q("22 mm")))
sketch4.addConstraint(Sketcher.Constraint("Radius", 0, Q("2 mm")))
sketch4.addConstraint(Sketcher.Constraint("Diameter", 8, Q("3.4 mm")))
sketch4.addConstraint(Sketcher.Constraint("Diameter", 32, Q("12.8 mm")))
sketch4.addConstraint(Sketcher.Constraint("Diameter", 43, Q("3.2 mm")))
sketch4.addConstraint(Sketcher.Constraint("Diameter", 47, Q("6.5 mm")))
sketch4.addConstraint(Sketcher.Constraint("DistanceX", 3, 1, 3, 2, Q("43.1 mm")))
sketch4.addConstraint(Sketcher.Constraint("DistanceX", 11, 1, 11, 2, Q("15.9 mm")))
sketch4.addConstraint(Sketcher.Constraint("DistanceX", 15, 1, 15, 2, Q("14.5 mm")))
sketch4.addConstraint(Sketcher.Constraint("DistanceX", 23, 1, 23, 2, Q("12.3 mm")))
sketch4.addConstraint(Sketcher.Constraint("DistanceY", 1, 2, 1, 1, Q("24.1 mm")))
sketch4.addConstraint(Sketcher.Constraint("DistanceY", 10, 2, 10, 1, Q("13.5 mm")))
sketch4.addConstraint(Sketcher.Constraint("DistanceY", 14, 2, 14, 1, Q("16.5 mm")))
sketch4.addConstraint(Sketcher.Constraint("DistanceY", 22, 2, 22, 1, Q("10.7 mm")))
sketch4.addConstraint(Sketcher.Constraint("DistanceY", 26, 2, 26, 1, Q("11.1 mm")))
sketch4.addConstraint(Sketcher.Constraint("DistanceY", 31, 3, -1, 1, Q("2 mm")))
sketch4.addConstraint(Sketcher.Constraint("DistanceX", -1, 1, 39, 3, Q("105 mm")))
sketch4.addConstraint(Sketcher.Constraint("DistanceX", -1, 1, 40, 3, Q("130 mm")))
sketch4.addConstraint(Sketcher.Constraint("DistanceX", -1, 1, 41, 3, Q("150 mm")))
sketch4.addConstraint(Sketcher.Constraint("DistanceX", -1, 1, 42, 3, Q("175 mm")))
sketch4.addConstraint(Sketcher.Constraint("DistanceY", 22, 2, -1, 1, Q("24 mm")))
sketch4.addConstraint(Sketcher.Constraint("DistanceX", 8, 3, 9, 3, Q("56 mm")))
sketch4.addConstraint(Sketcher.Constraint("DistanceY", 32, 3, 6, 3, Q("22 mm")))
sketch4.addConstraint(Sketcher.Constraint("DistanceY", 33, 3, 47, 3, Q("42 mm")))
sketch4.addConstraint(Sketcher.Constraint("DistanceX", 48, 3, 47, 3, Q("15 mm")))
sketch4.addConstraint(Sketcher.Constraint("DistanceY", 10, 2, 47, 3, Q("25 mm")))
sketch4.addConstraint(Sketcher.Constraint("DistanceX", 18, 2, 14, 2, Q("18 mm")))
sketch4.addConstraint(Sketcher.Constraint("DistanceY", 29, 2, 12, 2, Q("22 mm")))
sketch4.addConstraint(Sketcher.Constraint("DistanceY", 38, 3, 36, 2, Q("3 mm")))
sketch4.addConstraint(Sketcher.Constraint("DistanceX", 35, 1, 35, 2, Q("9.75 mm")))
sketch4.addConstraint(Sketcher.Constraint("DistanceY", 34, 2, 34, 1, Q("10.05 mm")))
sketch4.addConstraint(Sketcher.Constraint("DistanceY", 8, 3, -1, 1, Q("7.4 mm")))
sketch4.addConstraint(Sketcher.Constraint("DistanceY", 30, 3, -1, 1, Q("11.9 mm")))
sketch4.addConstraint(Sketcher.Constraint("DistanceX", -1, 1, 43, 3, Q("184.9 mm")))
sketch4.addConstraint(Sketcher.Constraint("DistanceX", -1, 1, 44, 3, Q("165.1 mm")))
sketch4.addConstraint(Sketcher.Constraint("DistanceX", -1, 1, 45, 3, Q("114.9 mm")))
sketch4.addConstraint(Sketcher.Constraint("DistanceX", -1, 1, 46, 3, Q("95.1 mm")))
sketch4.addConstraint(Sketcher.Constraint("DistanceX", 30, 3, 31, 3, Q("9.9 mm")))
sketch4.addConstraint(Sketcher.Constraint("DistanceX", 33, 3, 30, 3, Q("9.9 mm")))
sketch4.addConstraint(Sketcher.Constraint("DistanceX", 9, 3, 10, 2, Q("43.8 mm")))
sketch4.addConstraint(Sketcher.Constraint("DistanceX", 5, 2, 18, 2, Q("12.2 mm")))
sketch4.addConstraint(Sketcher.Constraint("DistanceX", 14, 2, 22, 2, Q("3.1 mm")))
sketch4.addConstraint(Sketcher.Constraint("DistanceX", 8, 3, 2, 3, Q("6.45 mm")))
sketch4.addConstraint(Sketcher.Constraint("Diameter", 31, Q("2.435866 mm")))
sketch4.addConstraint(Sketcher.Constraint("Diameter", 33, Q("3.015793 mm")))
sketch4.addConstraint(Sketcher.Constraint("DistanceX", 0, 3, -1, 1, Q("165.568 mm")))
sketch4.addConstraint(Sketcher.Constraint("DistanceX", -1, 1, 34, 2, Q("54.137 mm")))
sketch4.addConstraint(Sketcher.Constraint("DistanceX", 30, 3, -1, 1, Q("1.0082 mm")))
sketch4.addConstraint(Sketcher.Constraint("DistanceX", -1, 1, 32, 3, Q("22.0042 mm")))
sketch4.addConstraint(Sketcher.Constraint("DistanceX", -1, 1, 38, 3, Q("41.0034 mm")))
sketch4.addConstraint(Sketcher.Constraint("DistanceX", 26, 2, -1, 1, Q("41.1434 mm")))
sketch4.addConstraint(Sketcher.Constraint("DistanceX", 47, 3, -1, 1, Q("74.36571 mm")))
pocket1 = doc.addObject("PartDesign::Pocket", "Pocket")
body.addObject(pocket1)
pocket1.Profile = sketch4
pocket1.Length = 10

# Sketch on XZ plane
sketch5 = doc.addObject("Sketcher::SketchObject", "Sketch004")
body.addObject(sketch5)
sketch5.AttachmentSupport = (doc.XZ_Plane, [""])
sketch5.MapMode = "FlatFace"
sketch5.AttachmentOffset = App.Placement(Vector(0, 0, -31), App.Rotation())
sketch5.addGeometry(Part.Circle(Vector(0, 8, 0), Vector(0, 0, 1), 1.65), False)
sketch5.addGeometry(Part.Circle(Vector(-90, 8, 0), Vector(0, 0, 1), 1.65), False)
sketch5.addGeometry(Part.Circle(Vector(90, 8, 0), Vector(0, 0, 1), 1.65), False)
sketch5.addConstraint(Sketcher.Constraint("Equal", 0, 1))
sketch5.addConstraint(Sketcher.Constraint("Equal", 1, 2))
sketch5.addConstraint(Sketcher.Constraint("Symmetric", 1, 3, 2, 3, -2))
sketch5.addConstraint(Sketcher.Constraint("PointOnObject", 0, 3, -2))
sketch5.addConstraint(Sketcher.Constraint("Horizontal", 0, 3, 1, 3))
sketch5.addConstraint(Sketcher.Constraint("Diameter", 0, Q("3.3 mm")))
sketch5.addConstraint(Sketcher.Constraint("DistanceY", -1, 1, 0, 3, Q("8 mm")))
sketch5.addConstraint(Sketcher.Constraint("DistanceX", 1, 3, -1, 1, Q("90 mm")))
doc.recompute()
hole = doc.addObject("PartDesign::Hole", "Hole")
body.addObject(hole)
hole.Profile = sketch5
hole.ThreadType = "None"
hole.Diameter = 3.3
hole.DepthType = "ThroughAll"
hole.Reversed = True

doc.recompute()
